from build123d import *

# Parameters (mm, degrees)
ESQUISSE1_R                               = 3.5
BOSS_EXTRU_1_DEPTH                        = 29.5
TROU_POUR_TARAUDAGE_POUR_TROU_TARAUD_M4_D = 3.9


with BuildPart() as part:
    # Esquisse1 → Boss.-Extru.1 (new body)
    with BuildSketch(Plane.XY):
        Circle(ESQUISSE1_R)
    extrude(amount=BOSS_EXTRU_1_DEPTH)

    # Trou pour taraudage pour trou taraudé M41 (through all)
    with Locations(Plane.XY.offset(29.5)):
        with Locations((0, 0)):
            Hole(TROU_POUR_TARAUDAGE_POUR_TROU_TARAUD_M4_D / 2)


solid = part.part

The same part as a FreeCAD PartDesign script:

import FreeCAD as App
import Part
import Sketcher
Q = App.Units.Quantity

doc = App.newDocument("Part")
body = doc.addObject("PartDesign::Body", "Body")

sketch1 = doc.addObject("Sketcher::SketchObject", "Sketch")
body.addObject(sketch1)
sketch1.AttachmentSupport = (doc.XY_Plane, [""])
sketch1.MapMode = "FlatFace"
sketch1.addGeometry(Part.Circle(App.Vector(0, 0, 0), App.Vector(0, 0, 1), 3.5), False)
sketch1.addConstraint([
    Sketcher.Constraint("Coincident", 0, 3, -1, 1),
    Sketcher.Constraint("Diameter", 0, Q("7 mm")),
])
pad1 = doc.addObject("PartDesign::Pad", "Pad")
body.addObject(pad1)
pad1.Profile = sketch1
pad1.Length = 29.5

sketch2 = doc.addObject("Sketcher::SketchObject", "Sketch001")
body.addObject(sketch2)
sketch2.AttachmentSupport = (doc.XY_Plane, [""])
sketch2.MapMode = "FlatFace"
sketch2.AttachmentOffset = App.Placement(App.Vector(0, 0, 29.5), App.Rotation())
sketch2.addGeometry(Part.Circle(App.Vector(0, 0, 0), App.Vector(0, 0, 1), 1.9), False)
sketch2.addConstraint([
    Sketcher.Constraint("Coincident", 0, 3, -1, 1),
    Sketcher.Constraint("Diameter", 0, Q("3.9 mm")),
])
doc.recompute()
hole = doc.addObject("PartDesign::Hole", "Hole")
body.addObject(hole)
hole.Profile = sketch2
hole.ThreadType = "None"
hole.Diameter = 3.9
hole.DepthType = "ThroughAll"

doc.recompute()
